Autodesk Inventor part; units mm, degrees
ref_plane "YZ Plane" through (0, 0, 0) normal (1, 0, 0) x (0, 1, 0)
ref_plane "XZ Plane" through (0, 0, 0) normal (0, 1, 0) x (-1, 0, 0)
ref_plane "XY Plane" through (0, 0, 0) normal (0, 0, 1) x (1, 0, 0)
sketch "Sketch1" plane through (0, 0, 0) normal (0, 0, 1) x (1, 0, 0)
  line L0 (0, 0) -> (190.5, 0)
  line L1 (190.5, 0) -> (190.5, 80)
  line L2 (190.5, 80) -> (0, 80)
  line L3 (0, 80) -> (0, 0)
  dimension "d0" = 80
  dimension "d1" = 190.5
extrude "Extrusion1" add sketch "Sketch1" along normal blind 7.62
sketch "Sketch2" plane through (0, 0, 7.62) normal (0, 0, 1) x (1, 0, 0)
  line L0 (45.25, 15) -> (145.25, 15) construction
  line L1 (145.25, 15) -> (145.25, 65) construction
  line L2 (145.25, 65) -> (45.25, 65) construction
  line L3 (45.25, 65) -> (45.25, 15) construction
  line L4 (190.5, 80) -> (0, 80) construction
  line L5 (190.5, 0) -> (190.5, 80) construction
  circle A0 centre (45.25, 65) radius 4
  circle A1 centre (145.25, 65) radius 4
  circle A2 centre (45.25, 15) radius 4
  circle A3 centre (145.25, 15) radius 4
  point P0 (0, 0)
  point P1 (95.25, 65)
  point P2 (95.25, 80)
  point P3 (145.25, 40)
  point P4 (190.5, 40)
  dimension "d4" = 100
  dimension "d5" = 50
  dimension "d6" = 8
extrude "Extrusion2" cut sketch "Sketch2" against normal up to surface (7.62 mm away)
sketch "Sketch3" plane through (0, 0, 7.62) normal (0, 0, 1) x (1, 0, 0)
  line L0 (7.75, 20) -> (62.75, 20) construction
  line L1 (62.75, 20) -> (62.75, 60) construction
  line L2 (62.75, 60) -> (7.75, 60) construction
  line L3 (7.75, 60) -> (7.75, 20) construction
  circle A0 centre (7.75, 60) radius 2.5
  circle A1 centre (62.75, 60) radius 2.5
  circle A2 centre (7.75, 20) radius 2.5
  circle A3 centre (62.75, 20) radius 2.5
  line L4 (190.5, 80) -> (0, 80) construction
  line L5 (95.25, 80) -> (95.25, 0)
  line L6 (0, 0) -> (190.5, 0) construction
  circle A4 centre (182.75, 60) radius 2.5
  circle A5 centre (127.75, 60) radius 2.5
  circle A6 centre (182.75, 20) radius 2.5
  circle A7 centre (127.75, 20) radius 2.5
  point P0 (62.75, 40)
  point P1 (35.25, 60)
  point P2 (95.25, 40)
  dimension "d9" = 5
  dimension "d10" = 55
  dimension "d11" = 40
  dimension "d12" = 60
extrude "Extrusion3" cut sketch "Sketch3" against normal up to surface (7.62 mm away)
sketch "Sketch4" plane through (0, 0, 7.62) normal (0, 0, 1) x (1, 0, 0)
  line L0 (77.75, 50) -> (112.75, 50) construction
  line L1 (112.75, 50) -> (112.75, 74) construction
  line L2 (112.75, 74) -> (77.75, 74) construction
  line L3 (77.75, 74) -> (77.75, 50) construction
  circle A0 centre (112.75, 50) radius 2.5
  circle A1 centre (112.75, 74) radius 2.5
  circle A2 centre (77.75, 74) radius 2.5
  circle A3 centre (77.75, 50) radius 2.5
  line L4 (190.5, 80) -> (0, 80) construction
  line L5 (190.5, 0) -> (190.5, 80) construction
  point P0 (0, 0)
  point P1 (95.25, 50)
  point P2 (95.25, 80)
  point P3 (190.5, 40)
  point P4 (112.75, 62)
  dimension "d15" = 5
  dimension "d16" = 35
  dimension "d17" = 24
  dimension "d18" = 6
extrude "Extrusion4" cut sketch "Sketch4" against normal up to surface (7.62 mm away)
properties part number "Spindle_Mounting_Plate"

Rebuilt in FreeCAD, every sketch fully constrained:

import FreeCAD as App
import Part
import Sketcher

V = App.Vector

doc = App.newDocument("Part")
body = doc.addObject("PartDesign::Body", "Body")

# Sketch on XY plane
sketch1 = body.newObject("Sketcher::SketchObject", "Sketch")
sketch1.AttachmentSupport = (doc.getObject("XY_Plane"), [""])
sketch1.MapMode = "FlatFace"
sketch1.addGeometry([
    Part.LineSegment(V(0, 80, 0), V(0, 0, 0)),
    Part.LineSegment(V(0, 0, 0), V(190.5, 0, 0)),
    Part.LineSegment(V(190.5, 0, 0), V(190.5, 80, 0)),
    Part.LineSegment(V(190.5, 80, 0), V(0, 80, 0)),
], False)
sketch1.addConstraint([
    Sketcher.Constraint("Coincident", 0, 2, 1, 1),
    Sketcher.Constraint("Coincident", 1, 2, 2, 1),
    Sketcher.Constraint("Coincident", 2, 2, 3, 1),
    Sketcher.Constraint("Coincident", 3, 2, 0, 1),
    Sketcher.Constraint("Vertical", 0),
    Sketcher.Constraint("Horizontal", 1),
    Sketcher.Constraint("Vertical", 2),
    Sketcher.Constraint("Horizontal", 3),
    Sketcher.Constraint("Coincident", 0, 2, -1, 1),
    Sketcher.Constraint("DistanceY", 0, 2, 0, 1, 80.0),
    Sketcher.Constraint("DistanceX", 1, 1, 1, 2, 190.5),
])
pad1 = body.newObject("PartDesign::Pad", "Pad")
pad1.Profile = sketch1
pad1.Length = 7.62

# Sketch on XY plane
sketch2 = body.newObject("Sketcher::SketchObject", "Sketch001")
sketch2.AttachmentSupport = (doc.getObject("XY_Plane"), [""])
sketch2.MapMode = "FlatFace"
sketch2.AttachmentOffset = App.Placement(V(0, 0, 7.62), App.Rotation())
sketch2.addGeometry([
    Part.Circle(V(45.25, 65, 0), V(0, 0, 1), 4),
    Part.Circle(V(145.25, 65, 0), V(0, 0, 1), 4),
    Part.Circle(V(45.25, 15, 0), V(0, 0, 1), 4),
    Part.Circle(V(145.25, 15, 0), V(0, 0, 1), 4),
], False)
sketch2.addConstraint([
    Sketcher.Constraint("Equal", 0, 1),
    Sketcher.Constraint("Equal", 1, 2),
    Sketcher.Constraint("Equal", 2, 3),
    Sketcher.Constraint("Horizontal", 0, 3, 1, 3),
    Sketcher.Constraint("Horizontal", 2, 3, 3, 3),
    Sketcher.Constraint("Vertical", 0, 3, 2, 3),
    Sketcher.Constraint("Vertical", 1, 3, 3, 3),
    Sketcher.Constraint("Diameter", 0, 8.0),
    Sketcher.Constraint("DistanceX", 0, 3, 1, 3, 100.0),
    Sketcher.Constraint("DistanceY", 2, 3, 0, 3, 50.0),
    Sketcher.Constraint("DistanceY", -1, 1, 0, 3, 65.0),
    Sketcher.Constraint("DistanceX", -1, 1, 0, 3, 45.25),
])
pocket1 = body.newObject("PartDesign::Pocket", "Pocket")
pocket1.Profile = sketch2
pocket1.Length = 7.62

# Sketch on XY plane
sketch3 = body.newObject("Sketcher::SketchObject", "Sketch002")
sketch3.AttachmentSupport = (doc.getObject("XY_Plane"), [""])
sketch3.MapMode = "FlatFace"
sketch3.AttachmentOffset = App.Placement(V(0, 0, 7.62), App.Rotation())
sketch3.addGeometry([
    Part.Circle(V(7.75, 60, 0), V(0, 0, 1), 2.5),  # 0
    Part.Circle(V(62.75, 60, 0), V(0, 0, 1), 2.5),  # 1
    Part.Circle(V(7.75, 20, 0), V(0, 0, 1), 2.5),  # 2
    Part.Circle(V(62.75, 20, 0), V(0, 0, 1), 2.5),  # 3
    Part.Circle(V(182.75, 60, 0), V(0, 0, 1), 2.5),  # 4
    Part.Circle(V(127.75, 60, 0), V(0, 0, 1), 2.5),  # 5
    Part.Circle(V(182.75, 20, 0), V(0, 0, 1), 2.5),  # 6
    Part.Circle(V(127.75, 20, 0), V(0, 0, 1), 2.5),  # 7
], False)
sketch3.addConstraint([
    Sketcher.Constraint("Equal", 0, 1),
    Sketcher.Constraint("Equal", 1, 2),
    Sketcher.Constraint("Equal", 2, 3),
    Sketcher.Constraint("Equal", 3, 4),
    Sketcher.Constraint("Equal", 4, 5),
    Sketcher.Constraint("Equal", 5, 6),
    Sketcher.Constraint("Equal", 6, 7),
    Sketcher.Constraint("Horizontal", 0, 3, 1, 3),
    Sketcher.Constraint("Horizontal", 2, 3, 3, 3),
    Sketcher.Constraint("Horizontal", 1, 3, 4, 3),
    Sketcher.Constraint("Horizontal", 4, 3, 5, 3),
    Sketcher.Constraint("Horizontal", 3, 3, 6, 3),
    Sketcher.Constraint("Horizontal", 6, 3, 7, 3),
    Sketcher.Constraint("Vertical", 0, 3, 2, 3),
    Sketcher.Constraint("Vertical", 1, 3, 3, 3),
    Sketcher.Constraint("Vertical", 4, 3, 6, 3),
    Sketcher.Constraint("Vertical", 5, 3, 7, 3),
    Sketcher.Constraint("Diameter", 0, 5.0),
    Sketcher.Constraint("DistanceY", -1, 1, 0, 3, 60.0),
    Sketcher.Constraint("DistanceX", 0, 3, 1, 3, 55.0),
    Sketcher.Constraint("DistanceY", 2, 3, 0, 3, 40.0),
    Sketcher.Constraint("DistanceX", 5, 3, 4, 3, 55.0),
    Sketcher.Constraint("DistanceX", 1, 3, 4, 3, 120.0),
    Sketcher.Constraint("DistanceX", -1, 1, 0, 3, 7.75),
])
pocket2 = body.newObject("PartDesign::Pocket", "Pocket001")
pocket2.Profile = sketch3
pocket2.Length = 7.62

# Sketch on XY plane
sketch4 = body.newObject("Sketcher::SketchObject", "Sketch003")
sketch4.AttachmentSupport = (doc.getObject("XY_Plane"), [""])
sketch4.MapMode = "FlatFace"
sketch4.AttachmentOffset = App.Placement(V(0, 0, 7.62), App.Rotation())
sketch4.addGeometry([
    Part.Circle(V(112.75, 50, 0), V(0, 0, 1), 2.5),
    Part.Circle(V(112.75, 74, 0), V(0, 0, 1), 2.5),
    Part.Circle(V(77.75, 74, 0), V(0, 0, 1), 2.5),
    Part.Circle(V(77.75, 50, 0), V(0, 0, 1), 2.5),
], False)
sketch4.addConstraint([
    Sketcher.Constraint("Equal", 0, 1),
    Sketcher.Constraint("Equal", 1, 2),
    Sketcher.Constraint("Equal", 2, 3),
    Sketcher.Constraint("Horizontal", 1, 3, 2, 3),
    Sketcher.Constraint("Horizontal", 0, 3, 3, 3),
    Sketcher.Constraint("Vertical", 0, 3, 1, 3),
    Sketcher.Constraint("Vertical", 2, 3, 3, 3),
    Sketcher.Constraint("Diameter", 0, 5.0),
    Sketcher.Constraint("DistanceY", 0, 3, 1, 3, 24.0),
    Sketcher.Constraint("DistanceX", 2, 3, 1, 3, 35.0),
    Sketcher.Constraint("DistanceY", -1, 1, 0, 3, 50.0),
    Sketcher.Constraint("DistanceX", -1, 1, 0, 3, 112.75),
])
pocket3 = body.newObject("PartDesign::Pocket", "Pocket002")
pocket3.Profile = sketch4
pocket3.Length = 7.62

doc.recompute()
